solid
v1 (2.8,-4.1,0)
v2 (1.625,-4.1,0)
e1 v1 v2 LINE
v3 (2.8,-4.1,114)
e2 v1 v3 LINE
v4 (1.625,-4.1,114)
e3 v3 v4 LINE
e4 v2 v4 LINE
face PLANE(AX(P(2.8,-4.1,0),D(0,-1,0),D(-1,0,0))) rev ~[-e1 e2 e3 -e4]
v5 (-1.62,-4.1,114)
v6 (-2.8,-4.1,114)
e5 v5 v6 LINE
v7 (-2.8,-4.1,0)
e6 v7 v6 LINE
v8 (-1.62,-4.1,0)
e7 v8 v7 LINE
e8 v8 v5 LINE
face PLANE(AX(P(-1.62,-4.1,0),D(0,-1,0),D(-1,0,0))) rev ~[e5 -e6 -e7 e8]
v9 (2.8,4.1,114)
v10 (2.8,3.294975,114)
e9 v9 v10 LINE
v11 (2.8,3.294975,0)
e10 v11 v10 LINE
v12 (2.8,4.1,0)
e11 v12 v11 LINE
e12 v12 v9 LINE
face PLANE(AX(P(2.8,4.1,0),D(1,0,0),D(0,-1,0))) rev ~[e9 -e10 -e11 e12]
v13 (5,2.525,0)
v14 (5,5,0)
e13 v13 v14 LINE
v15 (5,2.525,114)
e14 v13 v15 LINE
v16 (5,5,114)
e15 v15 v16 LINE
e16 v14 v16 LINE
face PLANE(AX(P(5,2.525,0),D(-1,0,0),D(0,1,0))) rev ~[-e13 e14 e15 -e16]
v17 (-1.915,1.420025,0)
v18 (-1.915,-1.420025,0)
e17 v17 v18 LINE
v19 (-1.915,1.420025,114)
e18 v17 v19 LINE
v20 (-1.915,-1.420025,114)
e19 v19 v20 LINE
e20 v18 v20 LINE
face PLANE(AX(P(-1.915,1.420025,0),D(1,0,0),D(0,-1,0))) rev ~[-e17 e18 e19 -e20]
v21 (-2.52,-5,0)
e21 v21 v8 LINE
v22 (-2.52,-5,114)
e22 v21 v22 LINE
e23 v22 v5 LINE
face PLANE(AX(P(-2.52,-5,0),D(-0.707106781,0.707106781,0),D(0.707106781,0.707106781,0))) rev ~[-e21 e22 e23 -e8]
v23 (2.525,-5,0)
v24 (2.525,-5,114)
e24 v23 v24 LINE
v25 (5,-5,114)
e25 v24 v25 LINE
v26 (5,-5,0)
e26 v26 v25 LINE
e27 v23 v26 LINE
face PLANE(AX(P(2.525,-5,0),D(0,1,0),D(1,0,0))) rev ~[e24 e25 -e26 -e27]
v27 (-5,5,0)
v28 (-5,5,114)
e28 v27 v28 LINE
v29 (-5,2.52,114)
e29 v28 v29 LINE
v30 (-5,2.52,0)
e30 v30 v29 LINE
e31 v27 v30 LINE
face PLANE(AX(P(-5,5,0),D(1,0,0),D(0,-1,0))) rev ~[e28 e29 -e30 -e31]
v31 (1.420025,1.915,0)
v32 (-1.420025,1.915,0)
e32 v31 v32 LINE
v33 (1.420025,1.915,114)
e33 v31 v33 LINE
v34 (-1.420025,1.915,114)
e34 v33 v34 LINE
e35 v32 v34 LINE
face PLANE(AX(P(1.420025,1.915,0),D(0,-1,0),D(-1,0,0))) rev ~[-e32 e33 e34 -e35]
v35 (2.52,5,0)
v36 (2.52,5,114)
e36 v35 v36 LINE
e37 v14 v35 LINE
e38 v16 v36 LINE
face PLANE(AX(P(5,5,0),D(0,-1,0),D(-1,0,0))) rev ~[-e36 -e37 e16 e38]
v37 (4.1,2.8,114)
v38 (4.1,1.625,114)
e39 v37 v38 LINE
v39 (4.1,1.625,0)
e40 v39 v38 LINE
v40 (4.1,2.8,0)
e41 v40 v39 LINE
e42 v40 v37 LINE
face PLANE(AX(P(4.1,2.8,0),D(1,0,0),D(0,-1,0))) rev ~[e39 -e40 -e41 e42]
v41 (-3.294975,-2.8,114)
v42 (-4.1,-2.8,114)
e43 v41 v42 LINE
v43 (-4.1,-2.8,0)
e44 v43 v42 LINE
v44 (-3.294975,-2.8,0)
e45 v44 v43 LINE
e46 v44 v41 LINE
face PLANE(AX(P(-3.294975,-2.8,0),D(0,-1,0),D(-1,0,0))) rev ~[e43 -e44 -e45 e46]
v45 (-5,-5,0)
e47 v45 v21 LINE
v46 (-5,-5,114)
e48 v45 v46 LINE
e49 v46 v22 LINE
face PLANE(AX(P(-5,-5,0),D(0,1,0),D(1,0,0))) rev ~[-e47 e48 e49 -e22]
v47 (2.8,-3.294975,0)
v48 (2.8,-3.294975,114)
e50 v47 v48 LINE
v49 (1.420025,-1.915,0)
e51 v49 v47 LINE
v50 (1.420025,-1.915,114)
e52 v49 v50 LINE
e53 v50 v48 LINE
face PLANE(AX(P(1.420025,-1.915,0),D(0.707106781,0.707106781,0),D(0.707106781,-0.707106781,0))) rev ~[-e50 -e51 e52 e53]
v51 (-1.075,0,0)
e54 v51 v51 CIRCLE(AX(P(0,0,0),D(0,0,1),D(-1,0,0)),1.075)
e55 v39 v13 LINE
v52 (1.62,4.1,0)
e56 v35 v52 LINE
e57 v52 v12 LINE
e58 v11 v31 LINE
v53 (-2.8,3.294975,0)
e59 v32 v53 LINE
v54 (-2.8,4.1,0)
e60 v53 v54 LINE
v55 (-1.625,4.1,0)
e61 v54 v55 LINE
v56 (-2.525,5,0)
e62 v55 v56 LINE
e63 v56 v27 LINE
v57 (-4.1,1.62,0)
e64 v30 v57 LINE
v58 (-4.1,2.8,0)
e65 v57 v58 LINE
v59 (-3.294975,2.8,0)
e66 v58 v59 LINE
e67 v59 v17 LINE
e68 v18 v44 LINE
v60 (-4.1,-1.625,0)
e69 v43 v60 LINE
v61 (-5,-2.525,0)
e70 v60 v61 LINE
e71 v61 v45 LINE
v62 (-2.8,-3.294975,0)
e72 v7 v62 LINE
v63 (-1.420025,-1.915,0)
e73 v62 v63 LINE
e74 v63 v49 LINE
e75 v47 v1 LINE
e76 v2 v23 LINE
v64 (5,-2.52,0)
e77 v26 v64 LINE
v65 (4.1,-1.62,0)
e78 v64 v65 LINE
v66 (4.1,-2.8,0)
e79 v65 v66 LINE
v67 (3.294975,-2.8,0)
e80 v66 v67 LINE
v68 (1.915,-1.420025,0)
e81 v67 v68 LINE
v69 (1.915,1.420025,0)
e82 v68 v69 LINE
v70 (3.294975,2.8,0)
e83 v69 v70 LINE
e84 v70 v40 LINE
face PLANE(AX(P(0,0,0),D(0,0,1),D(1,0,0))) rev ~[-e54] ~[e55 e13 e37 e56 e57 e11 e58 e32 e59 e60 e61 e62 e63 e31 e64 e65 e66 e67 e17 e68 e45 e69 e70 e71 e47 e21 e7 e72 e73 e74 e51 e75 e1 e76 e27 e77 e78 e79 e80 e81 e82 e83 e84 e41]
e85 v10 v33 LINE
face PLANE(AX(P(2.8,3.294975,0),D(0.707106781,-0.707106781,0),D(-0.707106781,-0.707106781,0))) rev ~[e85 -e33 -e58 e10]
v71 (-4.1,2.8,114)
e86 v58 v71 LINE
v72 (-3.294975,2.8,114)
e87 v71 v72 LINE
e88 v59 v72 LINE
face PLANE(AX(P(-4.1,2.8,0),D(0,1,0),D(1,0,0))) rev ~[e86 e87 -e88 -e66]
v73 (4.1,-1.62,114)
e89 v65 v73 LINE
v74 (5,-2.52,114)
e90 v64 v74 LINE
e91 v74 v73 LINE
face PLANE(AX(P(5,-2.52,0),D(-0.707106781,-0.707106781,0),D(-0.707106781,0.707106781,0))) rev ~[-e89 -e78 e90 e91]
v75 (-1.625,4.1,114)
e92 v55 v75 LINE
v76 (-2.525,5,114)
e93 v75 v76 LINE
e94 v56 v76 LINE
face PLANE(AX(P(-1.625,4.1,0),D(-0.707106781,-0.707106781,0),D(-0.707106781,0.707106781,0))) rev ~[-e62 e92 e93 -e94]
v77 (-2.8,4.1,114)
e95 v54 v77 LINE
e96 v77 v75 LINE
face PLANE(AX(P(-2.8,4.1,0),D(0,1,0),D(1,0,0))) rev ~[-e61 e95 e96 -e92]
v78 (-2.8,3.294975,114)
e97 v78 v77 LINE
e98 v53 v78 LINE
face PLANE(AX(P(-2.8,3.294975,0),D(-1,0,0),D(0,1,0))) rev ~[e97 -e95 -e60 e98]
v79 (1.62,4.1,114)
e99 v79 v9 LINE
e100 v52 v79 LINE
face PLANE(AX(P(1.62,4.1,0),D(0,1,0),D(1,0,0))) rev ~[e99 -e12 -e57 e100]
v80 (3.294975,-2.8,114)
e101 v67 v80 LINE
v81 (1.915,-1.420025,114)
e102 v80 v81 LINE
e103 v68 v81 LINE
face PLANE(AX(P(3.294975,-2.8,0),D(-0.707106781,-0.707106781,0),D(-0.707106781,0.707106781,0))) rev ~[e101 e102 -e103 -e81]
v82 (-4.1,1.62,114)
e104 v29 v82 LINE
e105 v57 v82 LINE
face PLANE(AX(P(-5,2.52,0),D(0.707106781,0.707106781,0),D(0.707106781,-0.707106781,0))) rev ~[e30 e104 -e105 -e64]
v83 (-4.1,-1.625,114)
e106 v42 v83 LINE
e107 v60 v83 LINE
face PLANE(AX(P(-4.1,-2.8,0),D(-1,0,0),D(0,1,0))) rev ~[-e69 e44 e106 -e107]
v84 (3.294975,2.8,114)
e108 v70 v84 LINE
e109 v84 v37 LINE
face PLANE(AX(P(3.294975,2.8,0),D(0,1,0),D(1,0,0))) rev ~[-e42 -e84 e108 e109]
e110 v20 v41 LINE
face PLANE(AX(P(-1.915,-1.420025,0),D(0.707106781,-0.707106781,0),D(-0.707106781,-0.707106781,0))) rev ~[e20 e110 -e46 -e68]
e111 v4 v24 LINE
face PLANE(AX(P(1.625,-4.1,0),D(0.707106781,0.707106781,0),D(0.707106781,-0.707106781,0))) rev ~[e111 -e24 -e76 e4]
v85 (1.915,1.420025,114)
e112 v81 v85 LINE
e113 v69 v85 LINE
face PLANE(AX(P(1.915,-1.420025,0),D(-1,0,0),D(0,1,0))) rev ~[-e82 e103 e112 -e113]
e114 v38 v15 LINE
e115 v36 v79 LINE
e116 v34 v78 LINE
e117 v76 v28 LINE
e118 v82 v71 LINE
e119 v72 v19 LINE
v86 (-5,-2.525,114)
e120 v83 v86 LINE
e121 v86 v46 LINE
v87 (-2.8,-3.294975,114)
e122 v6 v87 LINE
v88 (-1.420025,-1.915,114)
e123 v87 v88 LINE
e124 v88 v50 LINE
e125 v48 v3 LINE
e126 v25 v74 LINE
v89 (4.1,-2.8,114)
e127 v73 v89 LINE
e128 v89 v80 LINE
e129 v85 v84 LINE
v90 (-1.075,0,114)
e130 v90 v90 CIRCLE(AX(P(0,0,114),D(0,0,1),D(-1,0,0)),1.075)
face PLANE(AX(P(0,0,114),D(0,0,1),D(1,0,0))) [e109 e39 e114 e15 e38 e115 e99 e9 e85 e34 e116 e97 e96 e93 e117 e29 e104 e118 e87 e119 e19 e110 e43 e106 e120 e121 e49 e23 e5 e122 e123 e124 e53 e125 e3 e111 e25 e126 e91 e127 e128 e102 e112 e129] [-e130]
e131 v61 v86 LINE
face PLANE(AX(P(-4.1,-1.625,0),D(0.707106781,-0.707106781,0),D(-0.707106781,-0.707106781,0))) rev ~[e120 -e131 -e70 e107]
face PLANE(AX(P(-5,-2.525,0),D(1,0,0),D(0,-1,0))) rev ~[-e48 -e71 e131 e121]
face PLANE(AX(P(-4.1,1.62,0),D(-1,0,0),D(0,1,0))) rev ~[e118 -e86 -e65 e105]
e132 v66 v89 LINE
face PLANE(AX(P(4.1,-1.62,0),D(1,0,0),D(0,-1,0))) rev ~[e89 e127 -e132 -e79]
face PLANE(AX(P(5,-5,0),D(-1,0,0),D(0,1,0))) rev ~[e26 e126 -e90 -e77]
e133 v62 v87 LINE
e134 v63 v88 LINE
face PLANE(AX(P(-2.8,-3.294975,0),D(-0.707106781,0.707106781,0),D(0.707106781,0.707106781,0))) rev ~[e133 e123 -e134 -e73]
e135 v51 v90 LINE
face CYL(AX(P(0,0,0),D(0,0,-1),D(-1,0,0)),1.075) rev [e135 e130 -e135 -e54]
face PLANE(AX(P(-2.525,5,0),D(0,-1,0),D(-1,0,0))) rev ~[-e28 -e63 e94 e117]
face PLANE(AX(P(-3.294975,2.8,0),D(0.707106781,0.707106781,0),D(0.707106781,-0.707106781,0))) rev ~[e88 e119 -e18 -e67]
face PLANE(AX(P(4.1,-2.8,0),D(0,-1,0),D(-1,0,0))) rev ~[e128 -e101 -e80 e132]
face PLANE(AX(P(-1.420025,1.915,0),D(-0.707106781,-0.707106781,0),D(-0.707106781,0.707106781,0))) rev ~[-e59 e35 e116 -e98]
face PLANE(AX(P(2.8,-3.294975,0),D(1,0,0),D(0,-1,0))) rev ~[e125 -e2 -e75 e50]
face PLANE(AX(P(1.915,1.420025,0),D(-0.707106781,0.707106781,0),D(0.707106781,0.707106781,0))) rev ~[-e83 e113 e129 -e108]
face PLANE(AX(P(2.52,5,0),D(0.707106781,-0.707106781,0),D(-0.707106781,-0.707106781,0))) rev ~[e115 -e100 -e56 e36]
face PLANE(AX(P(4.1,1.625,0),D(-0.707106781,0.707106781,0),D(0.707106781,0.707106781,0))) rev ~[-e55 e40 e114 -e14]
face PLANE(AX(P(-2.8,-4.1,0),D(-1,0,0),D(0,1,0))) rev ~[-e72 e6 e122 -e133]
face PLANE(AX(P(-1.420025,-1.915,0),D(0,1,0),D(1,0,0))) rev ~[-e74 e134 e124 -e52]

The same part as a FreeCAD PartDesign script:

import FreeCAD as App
import Part
import Sketcher
from FreeCAD import Vector
Q = App.Units.Quantity

doc = App.newDocument("Part")
body = doc.addObject("PartDesign::Body", "Body")

# Sketch on XY plane
sketch1 = doc.addObject("Sketcher::SketchObject", "Sketch")
body.addObject(sketch1)
sketch1.AttachmentSupport = (doc.XY_Plane, [""])
sketch1.MapMode = "FlatFace"
sketch1.addGeometry(Part.LineSegment(Vector(-1.4, 1.9, 0), Vector(-2.8, 3.3, 0)), False)
sketch1.addGeometry(Part.LineSegment(Vector(-2.8, 3.3, 0), Vector(-2.8, 4.1, 0)), False)
sketch1.addGeometry(Part.LineSegment(Vector(-2.8, 4.1, 0), Vector(-1.6, 4.1, 0)), False)
sketch1.addGeometry(Part.LineSegment(Vector(-1.6, 4.1, 0), Vector(-2.5, 5, 0)), False)
sketch1.addGeometry(Part.LineSegment(Vector(-2.5, 5, 0), Vector(-5, 5, 0)), False)
sketch1.addGeometry(Part.LineSegment(Vector(-5, 5, 0), Vector(-5, 2.5, 0)), False)
sketch1.addGeometry(Part.LineSegment(Vector(-5, 2.5, 0), Vector(-4.1, 1.6, 0)), False)
sketch1.addGeometry(Part.LineSegment(Vector(-4.1, 1.6, 0), Vector(-4.1, 2.8, 0)), False)
sketch1.addGeometry(Part.LineSegment(Vector(-4.1, 2.8, 0), Vector(-3.3, 2.8, 0)), False)
sketch1.addGeometry(Part.LineSegment(Vector(-3.3, 2.8, 0), Vector(-1.9, 1.4, 0)), False)
sketch1.addGeometry(Part.LineSegment(Vector(-1.9, 1.4, 0), Vector(-1.9, -1.4, 0)), False)
sketch1.addGeometry(Part.LineSegment(Vector(-1.9, -1.4, 0), Vector(-3.3, -2.8, 0)), False)
sketch1.addGeometry(Part.LineSegment(Vector(-3.3, -2.8, 0), Vector(-4.1, -2.8, 0)), False)
sketch1.addGeometry(Part.LineSegment(Vector(-4.1, -2.8, 0), Vector(-4.1, -1.6, 0)), False)
sketch1.addGeometry(Part.LineSegment(Vector(-4.1, -1.6, 0), Vector(-5, -2.5, 0)), False)
sketch1.addGeometry(Part.LineSegment(Vector(-5, -2.5, 0), Vector(-5, -5, 0)), False)
sketch1.addGeometry(Part.LineSegment(Vector(-5, -5, 0), Vector(-2.5, -5, 0)), False)
sketch1.addGeometry(Part.LineSegment(Vector(-2.5, -5, 0), Vector(-1.6, -4.1, 0)), False)
sketch1.addGeometry(Part.LineSegment(Vector(-1.6, -4.1, 0), Vector(-2.8, -4.1, 0)), False)
sketch1.addGeometry(Part.LineSegment(Vector(-2.8, -4.1, 0), Vector(-2.8, -3.3, 0)), False)
sketch1.addGeometry(Part.LineSegment(Vector(-2.8, -3.3, 0), Vector(-1.4, -1.9, 0)), False)
sketch1.addGeometry(Part.LineSegment(Vector(-1.4, -1.9, 0), Vector(1.4, -1.9, 0)), False)
sketch1.addGeometry(Part.LineSegment(Vector(1.4, -1.9, 0), Vector(2.8, -3.3, 0)), False)
sketch1.addGeometry(Part.LineSegment(Vector(2.8, -3.3, 0), Vector(2.8, -4.1, 0)), False)
sketch1.addGeometry(Part.LineSegment(Vector(2.8, -4.1, 0), Vector(1.6, -4.1, 0)), False)
sketch1.addGeometry(Part.LineSegment(Vector(1.6, -4.1, 0), Vector(2.5, -5, 0)), False)
sketch1.addGeometry(Part.LineSegment(Vector(2.5, -5, 0), Vector(5, -5, 0)), False)
sketch1.addGeometry(Part.LineSegment(Vector(5, -5, 0), Vector(5, -2.5, 0)), False)
sketch1.addGeometry(Part.LineSegment(Vector(5, -2.5, 0), Vector(4.1, -1.6, 0)), False)
sketch1.addGeometry(Part.LineSegment(Vector(4.1, -1.6, 0), Vector(4.1, -2.8, 0)), False)
sketch1.addGeometry(Part.LineSegment(Vector(4.1, -2.8, 0), Vector(3.3, -2.8, 0)), False)
sketch1.addGeometry(Part.LineSegment(Vector(3.3, -2.8, 0), Vector(1.9, -1.4, 0)), False)
sketch1.addGeometry(Part.LineSegment(Vector(1.9, -1.4, 0), Vector(1.9, 1.4, 0)), False)
sketch1.addGeometry(Part.LineSegment(Vector(1.9, 1.4, 0), Vector(3.3, 2.8, 0)), False)
sketch1.addGeometry(Part.LineSegment(Vector(3.3, 2.8, 0), Vector(4.1, 2.8, 0)), False)
sketch1.addGeometry(Part.LineSegment(Vector(4.1, 2.8, 0), Vector(4.1, 1.6, 0)), False)
sketch1.addGeometry(Part.LineSegment(Vector(4.1, 1.6, 0), Vector(5, 2.5, 0)), False)
sketch1.addGeometry(Part.LineSegment(Vector(5, 2.5, 0), Vector(5, 5, 0)), False)
sketch1.addGeometry(Part.LineSegment(Vector(5, 5, 0), Vector(2.5, 5, 0)), False)
sketch1.addGeometry(Part.LineSegment(Vector(2.5, 5, 0), Vector(1.6, 4.1, 0)), False)
sketch1.addGeometry(Part.LineSegment(Vector(1.6, 4.1, 0), Vector(2.8, 4.1, 0)), False)
sketch1.addGeometry(Part.LineSegment(Vector(2.8, 4.1, 0), Vector(2.8, 3.3, 0)), False)
sketch1.addGeometry(Part.LineSegment(Vector(2.8, 3.3, 0), Vector(1.4, 1.9, 0)), False)
sketch1.addGeometry(Part.LineSegment(Vector(1.4, 1.9, 0), Vector(-1.4, 1.9, 0)), False)
sketch1.addGeometry(Part.Circle(Vector(0, 0, 0), Vector(0, 0, 1), 1.1), False)
sketch1.addConstraint(Sketcher.Constraint("Coincident", 0, 2, 1, 1))
sketch1.addConstraint(Sketcher.Constraint("Coincident", 1, 2, 2, 1))
sketch1.addConstraint(Sketcher.Constraint("Coincident", 2, 2, 3, 1))
sketch1.addConstraint(Sketcher.Constraint("Coincident", 3, 2, 4, 1))
sketch1.addConstraint(Sketcher.Constraint("Coincident", 4, 2, 5, 1))
sketch1.addConstraint(Sketcher.Constraint("Coincident", 5, 2, 6, 1))
sketch1.addConstraint(Sketcher.Constraint("Coincident", 6, 2, 7, 1))
sketch1.addConstraint(Sketcher.Constraint("Coincident", 7, 2, 8, 1))
sketch1.addConstraint(Sketcher.Constraint("Coincident", 8, 2, 9, 1))
sketch1.addConstraint(Sketcher.Constraint("Coincident", 9, 2, 10, 1))
sketch1.addConstraint(Sketcher.Constraint("Coincident", 10, 2, 11, 1))
sketch1.addConstraint(Sketcher.Constraint("Coincident", 11, 2, 12, 1))
sketch1.addConstraint(Sketcher.Constraint("Coincident", 12, 2, 13, 1))
sketch1.addConstraint(Sketcher.Constraint("Coincident", 13, 2, 14, 1))
sketch1.addConstraint(Sketcher.Constraint("Coincident", 14, 2, 15, 1))
sketch1.addConstraint(Sketcher.Constraint("Coincident", 15, 2, 16, 1))
sketch1.addConstraint(Sketcher.Constraint("Coincident", 16, 2, 17, 1))
sketch1.addConstraint(Sketcher.Constraint("Coincident", 17, 2, 18, 1))
sketch1.addConstraint(Sketcher.Constraint("Coincident", 18, 2, 19, 1))
sketch1.addConstraint(Sketcher.Constraint("Coincident", 19, 2, 20, 1))
sketch1.addConstraint(Sketcher.Constraint("Coincident", 20, 2, 21, 1))
sketch1.addConstraint(Sketcher.Constraint("Coincident", 21, 2, 22, 1))
sketch1.addConstraint(Sketcher.Constraint("Coincident", 22, 2, 23, 1))
sketch1.addConstraint(Sketcher.Constraint("Coincident", 23, 2, 24, 1))
sketch1.addConstraint(Sketcher.Constraint("Coincident", 24, 2, 25, 1))
sketch1.addConstraint(Sketcher.Constraint("Coincident", 25, 2, 26, 1))
sketch1.addConstraint(Sketcher.Constraint("Coincident", 26, 2, 27, 1))
sketch1.addConstraint(Sketcher.Constraint("Coincident", 27, 2, 28, 1))
sketch1.addConstraint(Sketcher.Constraint("Coincident", 28, 2, 29, 1))
sketch1.addConstraint(Sketcher.Constraint("Coincident", 29, 2, 30, 1))
sketch1.addConstraint(Sketcher.Constraint("Coincident", 30, 2, 31, 1))
sketch1.addConstraint(Sketcher.Constraint("Coincident", 31, 2, 32, 1))
sketch1.addConstraint(Sketcher.Constraint("Coincident", 32, 2, 33, 1))
sketch1.addConstraint(Sketcher.Constraint("Coincident", 33, 2, 34, 1))
sketch1.addConstraint(Sketcher.Constraint("Coincident", 34, 2, 35, 1))
sketch1.addConstraint(Sketcher.Constraint("Coincident", 35, 2, 36, 1))
sketch1.addConstraint(Sketcher.Constraint("Coincident", 36, 2, 37, 1))
sketch1.addConstraint(Sketcher.Constraint("Coincident", 37, 2, 38, 1))
sketch1.addConstraint(Sketcher.Constraint("Coincident", 38, 2, 39, 1))
sketch1.addConstraint(Sketcher.Constraint("Coincident", 39, 2, 40, 1))
sketch1.addConstraint(Sketcher.Constraint("Coincident", 40, 2, 41, 1))
sketch1.addConstraint(Sketcher.Constraint("Coincident", 41, 2, 42, 1))
sketch1.addConstraint(Sketcher.Constraint("Coincident", 42, 2, 43, 1))
sketch1.addConstraint(Sketcher.Constraint("Coincident", 43, 2, 0, 1))
sketch1.addConstraint(Sketcher.Constraint("Vertical", 1))
sketch1.addConstraint(Sketcher.Constraint("Horizontal", 2))
sketch1.addConstraint(Sketcher.Constraint("Horizontal", 4))
sketch1.addConstraint(Sketcher.Constraint("Vertical", 5))
sketch1.addConstraint(Sketcher.Constraint("Vertical", 7))
sketch1.addConstraint(Sketcher.Constraint("Horizontal", 8))
sketch1.addConstraint(Sketcher.Constraint("Vertical", 10))
sketch1.addConstraint(Sketcher.Constraint("Horizontal", 12))
sketch1.addConstraint(Sketcher.Constraint("Vertical", 13))
sketch1.addConstraint(Sketcher.Constraint("Vertical", 15))
sketch1.addConstraint(Sketcher.Constraint("Horizontal", 16))
sketch1.addConstraint(Sketcher.Constraint("Horizontal", 18))
sketch1.addConstraint(Sketcher.Constraint("Vertical", 19))
sketch1.addConstraint(Sketcher.Constraint("Horizontal", 21))
sketch1.addConstraint(Sketcher.Constraint("Vertical", 23))
sketch1.addConstraint(Sketcher.Constraint("Horizontal", 24))
sketch1.addConstraint(Sketcher.Constraint("Horizontal", 26))
sketch1.addConstraint(Sketcher.Constraint("Vertical", 27))
sketch1.addConstraint(Sketcher.Constraint("Vertical", 29))
sketch1.addConstraint(Sketcher.Constraint("Horizontal", 30))
sketch1.addConstraint(Sketcher.Constraint("Vertical", 32))
sketch1.addConstraint(Sketcher.Constraint("Horizontal", 34))
sketch1.addConstraint(Sketcher.Constraint("Vertical", 35))
sketch1.addConstraint(Sketcher.Constraint("Vertical", 37))
sketch1.addConstraint(Sketcher.Constraint("Horizontal", 38))
sketch1.addConstraint(Sketcher.Constraint("Horizontal", 40))
sketch1.addConstraint(Sketcher.Constraint("Vertical", 41))
sketch1.addConstraint(Sketcher.Constraint("Horizontal", 43))
sketch1.addConstraint(Sketcher.Constraint("Coincident", 44, 3, -1, 1))
sketch1.addConstraint(Sketcher.Constraint("Symmetric", 0, 2, 22, 2, -1, 1))
sketch1.addConstraint(Sketcher.Constraint("Symmetric", 2, 2, 24, 2, -1, 1))
sketch1.addConstraint(Sketcher.Constraint("Symmetric", 3, 2, 25, 2, -1, 1))
sketch1.addConstraint(Sketcher.Constraint("Symmetric", 5, 2, 27, 2, -1, 1))
sketch1.addConstraint(Sketcher.Constraint("Symmetric", 6, 2, 28, 2, -1, 1))
sketch1.addConstraint(Sketcher.Constraint("Symmetric", 8, 2, 30, 2, -1, 1))
sketch1.addConstraint(Sketcher.Constraint("Symmetric", 9, 2, 31, 2, -1, 1))
sketch1.addConstraint(Sketcher.Constraint("Symmetric", 11, 2, 33, 2, -1, 1))
sketch1.addConstraint(Sketcher.Constraint("Symmetric", 13, 2, 35, 2, -1, 1))
sketch1.addConstraint(Sketcher.Constraint("Symmetric", 14, 2, 36, 2, -1, 1))
sketch1.addConstraint(Sketcher.Constraint("Symmetric", 16, 2, 38, 2, -1, 1))
sketch1.addConstraint(Sketcher.Constraint("Symmetric", 17, 2, 39, 2, -1, 1))
sketch1.addConstraint(Sketcher.Constraint("Symmetric", 19, 2, 41, 2, -1, 1))
sketch1.addConstraint(Sketcher.Constraint("Symmetric", 20, 2, 42, 2, -1, 1))
sketch1.addConstraint(Sketcher.Constraint("Symmetric", 19, 2, 22, 2, -2))
sketch1.addConstraint(Sketcher.Constraint("Symmetric", 15, 2, 26, 2, -2))
sketch1.addConstraint(Sketcher.Constraint("Symmetric", 12, 2, 29, 2, -2))
sketch1.addConstraint(Sketcher.Constraint("Parallel", 0, 3))
sketch1.addConstraint(Sketcher.Constraint("Parallel", 3, 6))
sketch1.addConstraint(Sketcher.Constraint("Parallel", 6, 9))
sketch1.addConstraint(Sketcher.Constraint("Perpendicular", 9, 11))
sketch1.addConstraint(Sketcher.Constraint("Parallel", 11, 14))
sketch1.addConstraint(Sketcher.Constraint("Parallel", 14, 17))
sketch1.addConstraint(Sketcher.Constraint("Parallel", 17, 20))
sketch1.addConstraint(Sketcher.Constraint("Perpendicular", 20, 22))
sketch1.addConstraint(Sketcher.Constraint("Perpendicular", 31, 33))
sketch1.addConstraint(Sketcher.Constraint("Horizontal", 18, 2, 23, 2))
sketch1.addConstraint(Sketcher.Constraint("Horizontal", 10, 2, 31, 2))
sketch1.addConstraint(Sketcher.Constraint("Vertical", 8, 2, 11, 2))
sketch1.addConstraint(Sketcher.Constraint("Equal", 34, 1))
sketch1.addConstraint(Sketcher.Constraint("Equal", 38, 5))
sketch1.addConstraint(Sketcher.Constraint("Equal", 40, 7))
sketch1.addConstraint(Sketcher.Constraint("Equal", 43, 10))
sketch1.addConstraint(Sketcher.Constraint("Equal", 24, 13))
sketch1.addConstraint(Sketcher.Constraint("Equal", 3, 6))
sketch1.addConstraint(Sketcher.Constraint("Equal", 0, 9))
sketch1.addConstraint(Sketcher.Constraint("Diameter", 44, Q("2.15 mm")))
sketch1.addConstraint(Sketcher.Constraint("DistanceY", -1, 1, 3, 2, Q("5 mm")))
sketch1.addConstraint(Sketcher.Constraint("DistanceX", 16, 1, 16, 2, Q("2.48 mm")))
sketch1.addConstraint(Sketcher.Constraint("DistanceX", 18, 2, 18, 1, Q("1.18 mm")))
sketch1.addConstraint(Sketcher.Constraint("DistanceX", 0, 2, -1, 1, Q("2.8 mm")))
sketch1.addConstraint(Sketcher.Constraint("DistanceX", 2, 1, 2, 2, Q("1.175 mm")))
sketch1.addConstraint(Sketcher.Constraint("DistanceX", 9, 2, 32, 2, Q("3.83 mm")))
sketch1.addConstraint(Sketcher.Constraint("DistanceX", 21, 1, 21, 2, Q("2.840051 mm")))
pad1 = doc.addObject("PartDesign::Pad", "Pad")
body.addObject(pad1)
pad1.Profile = sketch1
pad1.Length = 114

doc.recompute()
